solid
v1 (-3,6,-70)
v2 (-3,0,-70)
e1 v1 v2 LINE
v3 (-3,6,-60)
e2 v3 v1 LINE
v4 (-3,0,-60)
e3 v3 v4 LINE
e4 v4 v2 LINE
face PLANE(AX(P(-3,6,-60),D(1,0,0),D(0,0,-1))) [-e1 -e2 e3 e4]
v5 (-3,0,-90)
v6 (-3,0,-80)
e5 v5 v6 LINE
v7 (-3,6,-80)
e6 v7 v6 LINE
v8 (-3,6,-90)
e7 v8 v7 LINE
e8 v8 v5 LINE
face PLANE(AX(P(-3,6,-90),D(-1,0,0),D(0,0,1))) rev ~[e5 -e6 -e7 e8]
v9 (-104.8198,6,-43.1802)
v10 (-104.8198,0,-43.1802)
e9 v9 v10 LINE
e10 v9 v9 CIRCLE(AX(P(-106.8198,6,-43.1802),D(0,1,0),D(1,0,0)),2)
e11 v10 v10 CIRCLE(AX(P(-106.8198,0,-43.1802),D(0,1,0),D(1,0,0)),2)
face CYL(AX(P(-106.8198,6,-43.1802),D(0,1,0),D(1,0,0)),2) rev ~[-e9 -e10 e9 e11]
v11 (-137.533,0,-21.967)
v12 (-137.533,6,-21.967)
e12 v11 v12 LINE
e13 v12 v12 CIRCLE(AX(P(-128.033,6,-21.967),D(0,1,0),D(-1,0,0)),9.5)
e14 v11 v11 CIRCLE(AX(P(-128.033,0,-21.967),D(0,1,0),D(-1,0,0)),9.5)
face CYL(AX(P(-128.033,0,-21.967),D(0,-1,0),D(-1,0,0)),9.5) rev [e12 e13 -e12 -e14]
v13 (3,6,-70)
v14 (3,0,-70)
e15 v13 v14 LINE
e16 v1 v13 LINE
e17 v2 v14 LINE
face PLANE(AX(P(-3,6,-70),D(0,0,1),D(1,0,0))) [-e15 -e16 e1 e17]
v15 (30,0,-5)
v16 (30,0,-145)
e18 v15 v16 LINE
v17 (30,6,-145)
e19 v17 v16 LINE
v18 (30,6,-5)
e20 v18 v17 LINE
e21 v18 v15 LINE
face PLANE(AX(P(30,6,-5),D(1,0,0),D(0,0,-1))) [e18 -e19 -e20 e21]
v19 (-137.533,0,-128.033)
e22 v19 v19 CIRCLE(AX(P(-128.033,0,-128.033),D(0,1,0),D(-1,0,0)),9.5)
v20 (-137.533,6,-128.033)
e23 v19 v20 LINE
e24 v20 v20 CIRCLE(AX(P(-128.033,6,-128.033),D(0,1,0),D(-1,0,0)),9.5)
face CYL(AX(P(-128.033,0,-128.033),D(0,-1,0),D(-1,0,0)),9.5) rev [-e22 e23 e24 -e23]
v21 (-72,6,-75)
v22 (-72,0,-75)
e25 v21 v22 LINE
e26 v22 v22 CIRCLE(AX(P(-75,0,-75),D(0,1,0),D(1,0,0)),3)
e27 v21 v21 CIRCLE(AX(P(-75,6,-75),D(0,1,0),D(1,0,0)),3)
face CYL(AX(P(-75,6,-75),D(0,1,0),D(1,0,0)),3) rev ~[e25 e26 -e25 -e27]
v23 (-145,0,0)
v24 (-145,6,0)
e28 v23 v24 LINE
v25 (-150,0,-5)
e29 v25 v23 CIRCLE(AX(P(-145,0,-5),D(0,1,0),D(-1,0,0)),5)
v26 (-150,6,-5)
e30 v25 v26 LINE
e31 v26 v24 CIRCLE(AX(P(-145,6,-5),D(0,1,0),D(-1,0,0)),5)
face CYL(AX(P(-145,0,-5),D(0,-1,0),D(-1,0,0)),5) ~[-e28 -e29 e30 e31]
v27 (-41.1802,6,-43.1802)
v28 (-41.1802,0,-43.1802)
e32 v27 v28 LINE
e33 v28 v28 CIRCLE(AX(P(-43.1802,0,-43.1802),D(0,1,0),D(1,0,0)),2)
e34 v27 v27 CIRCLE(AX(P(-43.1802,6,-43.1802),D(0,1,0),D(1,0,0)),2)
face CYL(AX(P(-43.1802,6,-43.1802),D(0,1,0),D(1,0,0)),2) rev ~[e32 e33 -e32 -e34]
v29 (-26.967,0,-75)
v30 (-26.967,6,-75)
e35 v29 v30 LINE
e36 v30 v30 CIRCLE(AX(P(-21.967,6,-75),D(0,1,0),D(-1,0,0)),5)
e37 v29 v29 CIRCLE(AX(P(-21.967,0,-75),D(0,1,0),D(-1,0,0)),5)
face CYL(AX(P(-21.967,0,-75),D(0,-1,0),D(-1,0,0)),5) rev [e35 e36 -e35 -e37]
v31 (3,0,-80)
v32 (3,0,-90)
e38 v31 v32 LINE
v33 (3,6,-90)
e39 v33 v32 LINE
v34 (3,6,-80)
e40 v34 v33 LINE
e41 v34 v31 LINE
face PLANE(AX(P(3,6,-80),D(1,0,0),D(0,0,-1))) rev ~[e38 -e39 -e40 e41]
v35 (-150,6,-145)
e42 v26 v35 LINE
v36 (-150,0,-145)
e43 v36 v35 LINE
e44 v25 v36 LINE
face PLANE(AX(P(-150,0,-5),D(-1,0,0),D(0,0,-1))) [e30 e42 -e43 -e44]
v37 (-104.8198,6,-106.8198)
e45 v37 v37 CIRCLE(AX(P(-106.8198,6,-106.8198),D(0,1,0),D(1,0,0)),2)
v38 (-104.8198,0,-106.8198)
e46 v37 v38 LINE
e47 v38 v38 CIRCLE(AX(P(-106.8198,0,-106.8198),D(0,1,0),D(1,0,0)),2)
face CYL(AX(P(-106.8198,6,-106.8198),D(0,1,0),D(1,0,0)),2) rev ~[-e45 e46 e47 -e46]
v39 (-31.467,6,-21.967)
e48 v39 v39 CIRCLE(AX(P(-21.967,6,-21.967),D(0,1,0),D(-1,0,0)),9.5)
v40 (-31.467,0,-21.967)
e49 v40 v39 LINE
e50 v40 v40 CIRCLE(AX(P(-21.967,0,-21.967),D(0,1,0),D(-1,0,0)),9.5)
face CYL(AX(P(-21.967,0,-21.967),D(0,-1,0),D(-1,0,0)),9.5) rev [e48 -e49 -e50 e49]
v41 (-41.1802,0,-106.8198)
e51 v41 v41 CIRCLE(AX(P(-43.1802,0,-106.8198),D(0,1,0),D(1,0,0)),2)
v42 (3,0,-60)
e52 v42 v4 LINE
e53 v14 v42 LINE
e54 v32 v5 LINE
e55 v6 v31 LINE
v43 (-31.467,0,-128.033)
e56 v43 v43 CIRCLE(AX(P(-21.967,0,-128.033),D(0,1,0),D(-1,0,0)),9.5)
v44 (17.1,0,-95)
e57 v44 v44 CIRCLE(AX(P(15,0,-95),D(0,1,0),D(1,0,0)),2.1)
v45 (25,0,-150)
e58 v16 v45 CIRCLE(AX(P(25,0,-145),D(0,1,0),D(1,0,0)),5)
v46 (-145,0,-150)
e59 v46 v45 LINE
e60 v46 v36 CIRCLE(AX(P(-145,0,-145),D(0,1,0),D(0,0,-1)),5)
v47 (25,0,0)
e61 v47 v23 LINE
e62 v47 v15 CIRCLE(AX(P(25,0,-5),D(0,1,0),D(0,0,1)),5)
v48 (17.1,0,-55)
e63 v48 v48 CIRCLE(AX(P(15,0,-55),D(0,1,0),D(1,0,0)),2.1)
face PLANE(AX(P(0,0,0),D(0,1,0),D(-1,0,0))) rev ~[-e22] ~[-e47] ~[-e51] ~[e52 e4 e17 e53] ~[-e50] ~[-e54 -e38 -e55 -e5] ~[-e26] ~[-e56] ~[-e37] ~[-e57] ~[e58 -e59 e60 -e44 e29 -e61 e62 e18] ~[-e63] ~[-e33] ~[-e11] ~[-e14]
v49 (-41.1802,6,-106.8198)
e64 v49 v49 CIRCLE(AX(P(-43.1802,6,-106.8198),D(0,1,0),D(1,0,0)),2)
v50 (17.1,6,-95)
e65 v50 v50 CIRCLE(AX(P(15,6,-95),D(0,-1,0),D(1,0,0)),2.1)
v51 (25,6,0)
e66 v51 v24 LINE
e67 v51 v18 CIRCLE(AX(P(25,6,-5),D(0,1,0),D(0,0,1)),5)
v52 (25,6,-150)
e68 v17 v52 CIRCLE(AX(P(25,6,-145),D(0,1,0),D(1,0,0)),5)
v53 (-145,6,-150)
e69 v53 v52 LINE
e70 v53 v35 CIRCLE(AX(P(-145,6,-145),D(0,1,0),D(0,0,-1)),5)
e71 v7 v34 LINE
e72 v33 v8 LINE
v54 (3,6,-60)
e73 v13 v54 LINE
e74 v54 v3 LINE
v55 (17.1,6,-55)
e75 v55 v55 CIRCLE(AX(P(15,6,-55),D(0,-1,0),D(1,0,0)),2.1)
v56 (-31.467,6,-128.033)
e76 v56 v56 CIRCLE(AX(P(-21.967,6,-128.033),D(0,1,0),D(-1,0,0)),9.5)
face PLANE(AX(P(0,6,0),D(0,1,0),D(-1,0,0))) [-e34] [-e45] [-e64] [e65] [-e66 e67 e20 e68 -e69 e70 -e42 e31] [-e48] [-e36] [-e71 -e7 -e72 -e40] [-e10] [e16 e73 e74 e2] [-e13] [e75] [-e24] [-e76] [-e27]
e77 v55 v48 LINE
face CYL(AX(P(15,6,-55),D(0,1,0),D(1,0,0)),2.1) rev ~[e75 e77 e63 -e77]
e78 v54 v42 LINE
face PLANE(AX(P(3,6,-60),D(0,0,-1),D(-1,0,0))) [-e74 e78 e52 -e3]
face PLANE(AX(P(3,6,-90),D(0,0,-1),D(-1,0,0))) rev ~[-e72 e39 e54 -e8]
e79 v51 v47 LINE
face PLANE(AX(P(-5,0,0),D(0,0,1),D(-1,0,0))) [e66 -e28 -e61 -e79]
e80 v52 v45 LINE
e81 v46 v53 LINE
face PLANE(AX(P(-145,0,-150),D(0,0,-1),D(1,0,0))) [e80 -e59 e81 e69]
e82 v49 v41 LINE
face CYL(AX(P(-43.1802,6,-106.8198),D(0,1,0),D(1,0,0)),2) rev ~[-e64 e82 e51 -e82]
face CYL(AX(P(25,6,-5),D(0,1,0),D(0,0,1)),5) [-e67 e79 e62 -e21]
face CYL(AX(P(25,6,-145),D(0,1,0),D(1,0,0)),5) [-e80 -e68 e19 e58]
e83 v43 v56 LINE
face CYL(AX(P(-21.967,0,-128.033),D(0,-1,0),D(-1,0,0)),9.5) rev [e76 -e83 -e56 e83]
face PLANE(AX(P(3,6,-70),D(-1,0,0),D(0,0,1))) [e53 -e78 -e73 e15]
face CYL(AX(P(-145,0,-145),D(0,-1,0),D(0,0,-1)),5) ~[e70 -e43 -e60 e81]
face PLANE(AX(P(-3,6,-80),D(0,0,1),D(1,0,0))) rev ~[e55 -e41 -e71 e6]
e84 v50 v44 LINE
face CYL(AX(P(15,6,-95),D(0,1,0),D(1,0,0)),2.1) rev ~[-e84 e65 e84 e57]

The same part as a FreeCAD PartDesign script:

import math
import FreeCAD as App
import Part
import Sketcher
from FreeCAD import Vector
Q = App.Units.Quantity


def add_polygon(sketch, points):
    """Adds a closed chain of lines whose ends are joined by coincident constraints."""
    first, n = sketch.GeometryCount, len(points)
    for a, b in zip(points, points[1:] + points[:1]):
        sketch.addGeometry(Part.LineSegment(App.Vector(*a, 0), App.Vector(*b, 0)), False)
    for i in range(n):
        sketch.addConstraint(Sketcher.Constraint("Coincident", first + i, 2, first + (i + 1) % n, 1))

doc = App.newDocument("Part")
body = doc.addObject("PartDesign::Body", "Body")

sketch1 = body.newObject("Sketcher::SketchObject", "Sketch")
sketch1.AttachmentSupport = (doc.getObject("XZ_Plane"), [""])
sketch1.MapMode = "FlatFace"
sketch1.addGeometry([
    Part.LineSegment(Vector(-145, 0, 0), Vector(-5, 0, 0)),
    Part.ArcOfCircle(Part.Circle(Vector(-5, -5, 0), Vector(0, 0, 1), 5), math.radians(0), math.radians(90)),
    Part.LineSegment(Vector(0, -5, 0), Vector(0, -145, 0)),
    Part.ArcOfCircle(Part.Circle(Vector(-5, -145, 0), Vector(0, 0, 1), 5), math.radians(-90), math.radians(0)),
    Part.LineSegment(Vector(-5, -150, 0), Vector(-145, -150, 0)),
    Part.ArcOfCircle(Part.Circle(Vector(-145, -145, 0), Vector(0, 0, 1), 5), math.radians(180), math.radians(270)),
    Part.LineSegment(Vector(-150, -145, 0), Vector(-150, -5, 0)),
    Part.ArcOfCircle(Part.Circle(Vector(-145, -5, 0), Vector(0, 0, 1), 5), math.radians(90), math.radians(180)),
    Part.Circle(Vector(-22, -128, 0), Vector(0, 0, 1), 10),
    Part.Circle(Vector(-128, -128, 0), Vector(0, 0, 1), 10),
    Part.Circle(Vector(-22, -75, 0), Vector(0, 0, 1), 5),
    Part.Circle(Vector(-22, -22, 0), Vector(0, 0, 1), 10),
    Part.Circle(Vector(-128, -22, 0), Vector(0, 0, 1), 10),
], False)
sketch1.addConstraint([
    Sketcher.Constraint("Tangent", 0, 2, 1, 2),
    Sketcher.Constraint("Tangent", 1, 1, 2, 1),
    Sketcher.Constraint("Tangent", 2, 2, 3, 2),
    Sketcher.Constraint("Tangent", 3, 1, 4, 1),
    Sketcher.Constraint("Tangent", 4, 2, 5, 2),
    Sketcher.Constraint("Tangent", 5, 1, 6, 1),
    Sketcher.Constraint("Tangent", 6, 2, 7, 2),
    Sketcher.Constraint("Tangent", 7, 1, 0, 1),
    Sketcher.Constraint("Horizontal", 0),
    Sketcher.Constraint("Vertical", 2),
    Sketcher.Constraint("Horizontal", 4),
    Sketcher.Constraint("Vertical", 6),
    Sketcher.Constraint("Equal", 1, 3),
    Sketcher.Constraint("Equal", 3, 5),
    Sketcher.Constraint("Equal", 5, 7),
    Sketcher.Constraint("Equal", 8, 9),
    Sketcher.Constraint("Equal", 7, 10),
    Sketcher.Constraint("Equal", 9, 11),
    Sketcher.Constraint("Equal", 11, 12),
    Sketcher.Constraint("PointOnObject", 0, 2, -1),
    Sketcher.Constraint("PointOnObject", 1, 1, -2),
    Sketcher.Constraint("Horizontal", 8, 3, 9, 3),
    Sketcher.Constraint("Horizontal", 11, 3, 12, 3),
    Sketcher.Constraint("Vertical", 8, 3, 10, 3),
    Sketcher.Constraint("Vertical", 10, 3, 11, 3),
    Sketcher.Constraint("Vertical", 9, 3, 12, 3),
    Sketcher.Constraint("Equal", 4, 2),
    Sketcher.Constraint("Diameter", 8, Q("19 mm")),
    Sketcher.Constraint("Diameter", 10, Q("10 mm")),
    Sketcher.Constraint("DistanceY", 3, 1, -1, 1, Q("150 mm")),
    Sketcher.Constraint("DistanceY", 10, 3, -1, 1, Q("75 mm")),
    Sketcher.Constraint("DistanceX", 8, 3, -1, 1, Q("21.967 mm")),
    Sketcher.Constraint("DistanceY", 8, 3, -1, 1, Q("128.033 mm")),
    Sketcher.Constraint("DistanceX", 9, 3, -1, 1, Q("128.033 mm")),
    Sketcher.Constraint("DistanceY", 11, 3, -1, 1, Q("21.967 mm")),
])
pad1 = body.newObject("PartDesign::Pad", "Pad")
pad1.Profile = sketch1
pad1.Length = 6
pad1.Reversed = True

sketch2 = body.newObject("Sketcher::SketchObject", "Sketch001")
sketch2.AttachmentSupport = (doc.getObject("XZ_Plane"), [""])
sketch2.MapMode = "FlatFace"
sketch2.AttachmentOffset = App.Placement(Vector(0, 0, -6), App.Rotation())
sketch2.addGeometry([
    Part.Circle(Vector(-75, -75, 0), Vector(0, 0, 1), 3),
    Part.Circle(Vector(-106.8, -43.2, 0), Vector(0, 0, 1), 2),
    Part.Circle(Vector(-43.2, -43.2, 0), Vector(0, 0, 1), 2),
    Part.Circle(Vector(-43.2, -106.8, 0), Vector(0, 0, 1), 2),
    Part.Circle(Vector(-106.8, -106.8, 0), Vector(0, 0, 1), 2),
], False)
sketch2.addConstraint([
    Sketcher.Constraint("Equal", 1, 2),
    Sketcher.Constraint("Equal", 2, 3),
    Sketcher.Constraint("Equal", 3, 4),
    Sketcher.Constraint("Horizontal", 1, 3, 2, 3),
    Sketcher.Constraint("Horizontal", 3, 3, 4, 3),
    Sketcher.Constraint("Vertical", 2, 3, 3, 3),
    Sketcher.Constraint("Vertical", 1, 3, 4, 3),
    Sketcher.Constraint("Diameter", 0, Q("6 mm")),
    Sketcher.Constraint("Diameter", 1, Q("4 mm")),
    Sketcher.Constraint("DistanceX", 0, 3, -1, 1, Q("75 mm")),
    Sketcher.Constraint("DistanceY", 0, 3, -1, 1, Q("75 mm")),
    Sketcher.Constraint("DistanceX", 1, 3, -1, 1, Q("106.8198 mm")),
    Sketcher.Constraint("DistanceY", 1, 3, -1, 1, Q("43.1802 mm")),
    Sketcher.Constraint("DistanceX", 2, 3, -1, 1, Q("43.1802 mm")),
    Sketcher.Constraint("DistanceY", 3, 3, -1, 1, Q("106.8198 mm")),
])
pocket1 = body.newObject("PartDesign::Pocket", "Pocket")
pocket1.Profile = sketch2
pocket1.Length = 6
pocket1.Reversed = True

sketch3 = body.newObject("Sketcher::SketchObject", "Sketch002")
sketch3.AttachmentSupport = (doc.getObject("XZ_Plane"), [""])
sketch3.MapMode = "FlatFace"
sketch3.AttachmentOffset = App.Placement(Vector(0, 0, -6), App.Rotation())
sketch3.addGeometry([
    Part.LineSegment(Vector(-5, -150, 0), Vector(-5, 0, 0)),
    Part.LineSegment(Vector(-5, 0, 0), Vector(25, 0, 0)),
    Part.ArcOfCircle(Part.Circle(Vector(25, -5, 0), Vector(0, 0, 1), 5), math.radians(0), math.radians(90)),
    Part.LineSegment(Vector(30, -5, 0), Vector(30, -145, 0)),
    Part.ArcOfCircle(Part.Circle(Vector(25, -145, 0), Vector(0, 0, 1), 5), math.radians(-90), math.radians(0)),
    Part.LineSegment(Vector(25, -150, 0), Vector(-5, -150, 0)),
], False)
sketch3.addConstraint([
    Sketcher.Constraint("Coincident", 0, 2, 1, 1),
    Sketcher.Constraint("Tangent", 1, 2, 2, 2),
    Sketcher.Constraint("Tangent", 2, 1, 3, 1),
    Sketcher.Constraint("Tangent", 3, 2, 4, 2),
    Sketcher.Constraint("Tangent", 4, 1, 5, 1),
    Sketcher.Constraint("Coincident", 5, 2, 0, 1),
    Sketcher.Constraint("Vertical", 0),
    Sketcher.Constraint("Horizontal", 1),
    Sketcher.Constraint("Vertical", 3),
    Sketcher.Constraint("Horizontal", 5),
    Sketcher.Constraint("Equal", 2, 4),
    Sketcher.Constraint("PointOnObject", 0, 2, -1),
    Sketcher.Constraint("Radius", 2, Q("5 mm")),
    Sketcher.Constraint("DistanceY", 0, 1, 0, 2, Q("150 mm")),
    Sketcher.Constraint("DistanceX", 0, 2, -1, 1, Q("5 mm")),
    Sketcher.Constraint("DistanceX", 0, 2, 2, 1, Q("35 mm")),
])
pad2 = body.newObject("PartDesign::Pad", "Pad001")
pad2.Profile = sketch3
pad2.Length = 6

sketch4 = body.newObject("Sketcher::SketchObject", "Sketch003")
sketch4.AttachmentSupport = (doc.getObject("XZ_Plane"), [""])
sketch4.MapMode = "FlatFace"
sketch4.AttachmentOffset = App.Placement(Vector(0, 0, -6), App.Rotation())
sketch4.addGeometry(Part.Circle(Vector(15, -55, 0), Vector(0, 0, 1), 2.1), False)
sketch4.addGeometry(Part.Circle(Vector(15, -95, 0), Vector(0, 0, 1), 2.1), False)
add_polygon(sketch4, [(-3, -90), (-3, -80), (3, -80), (3, -90)])
add_polygon(sketch4, [(3, -70), (-3, -70), (-3, -60), (3, -60)])
sketch4.addConstraint([
    Sketcher.Constraint("Vertical", 2),
    Sketcher.Constraint("Horizontal", 3),
    Sketcher.Constraint("Vertical", 4),
    Sketcher.Constraint("Horizontal", 5),
    Sketcher.Constraint("Horizontal", 6),
    Sketcher.Constraint("Vertical", 7),
    Sketcher.Constraint("Horizontal", 8),
    Sketcher.Constraint("Vertical", 9),
    Sketcher.Constraint("Equal", 0, 1),
    Sketcher.Constraint("Vertical", 0, 3, 1, 3),
    Sketcher.Constraint("Vertical", 5, 2, 6, 2),
    Sketcher.Constraint("Vertical", 4, 2, 8, 2),
    Sketcher.Constraint("Equal", 4, 7),
    Sketcher.Constraint("Diameter", 0, Q("4.2 mm")),
    Sketcher.Constraint("DistanceX", 3, 1, 3, 2, Q("6 mm")),
    Sketcher.Constraint("DistanceY", 2, 1, 2, 2, Q("10 mm")),
    Sketcher.Constraint("DistanceY", 2, 2, 6, 2, Q("10 mm")),
    Sketcher.Constraint("DistanceX", -1, 1, 0, 3, Q("15 mm")),
    Sketcher.Constraint("DistanceY", 0, 3, -1, 1, Q("55 mm")),
    Sketcher.Constraint("DistanceY", 1, 3, -1, 1, Q("95 mm")),
    Sketcher.Constraint("DistanceX", 2, 2, -1, 1, Q("3 mm")),
    Sketcher.Constraint("DistanceY", 2, 2, -1, 1, Q("80 mm")),
])
pocket2 = body.newObject("PartDesign::Pocket", "Pocket001")
pocket2.Profile = sketch4
pocket2.Length = 6
pocket2.Reversed = True

doc.recompute()
